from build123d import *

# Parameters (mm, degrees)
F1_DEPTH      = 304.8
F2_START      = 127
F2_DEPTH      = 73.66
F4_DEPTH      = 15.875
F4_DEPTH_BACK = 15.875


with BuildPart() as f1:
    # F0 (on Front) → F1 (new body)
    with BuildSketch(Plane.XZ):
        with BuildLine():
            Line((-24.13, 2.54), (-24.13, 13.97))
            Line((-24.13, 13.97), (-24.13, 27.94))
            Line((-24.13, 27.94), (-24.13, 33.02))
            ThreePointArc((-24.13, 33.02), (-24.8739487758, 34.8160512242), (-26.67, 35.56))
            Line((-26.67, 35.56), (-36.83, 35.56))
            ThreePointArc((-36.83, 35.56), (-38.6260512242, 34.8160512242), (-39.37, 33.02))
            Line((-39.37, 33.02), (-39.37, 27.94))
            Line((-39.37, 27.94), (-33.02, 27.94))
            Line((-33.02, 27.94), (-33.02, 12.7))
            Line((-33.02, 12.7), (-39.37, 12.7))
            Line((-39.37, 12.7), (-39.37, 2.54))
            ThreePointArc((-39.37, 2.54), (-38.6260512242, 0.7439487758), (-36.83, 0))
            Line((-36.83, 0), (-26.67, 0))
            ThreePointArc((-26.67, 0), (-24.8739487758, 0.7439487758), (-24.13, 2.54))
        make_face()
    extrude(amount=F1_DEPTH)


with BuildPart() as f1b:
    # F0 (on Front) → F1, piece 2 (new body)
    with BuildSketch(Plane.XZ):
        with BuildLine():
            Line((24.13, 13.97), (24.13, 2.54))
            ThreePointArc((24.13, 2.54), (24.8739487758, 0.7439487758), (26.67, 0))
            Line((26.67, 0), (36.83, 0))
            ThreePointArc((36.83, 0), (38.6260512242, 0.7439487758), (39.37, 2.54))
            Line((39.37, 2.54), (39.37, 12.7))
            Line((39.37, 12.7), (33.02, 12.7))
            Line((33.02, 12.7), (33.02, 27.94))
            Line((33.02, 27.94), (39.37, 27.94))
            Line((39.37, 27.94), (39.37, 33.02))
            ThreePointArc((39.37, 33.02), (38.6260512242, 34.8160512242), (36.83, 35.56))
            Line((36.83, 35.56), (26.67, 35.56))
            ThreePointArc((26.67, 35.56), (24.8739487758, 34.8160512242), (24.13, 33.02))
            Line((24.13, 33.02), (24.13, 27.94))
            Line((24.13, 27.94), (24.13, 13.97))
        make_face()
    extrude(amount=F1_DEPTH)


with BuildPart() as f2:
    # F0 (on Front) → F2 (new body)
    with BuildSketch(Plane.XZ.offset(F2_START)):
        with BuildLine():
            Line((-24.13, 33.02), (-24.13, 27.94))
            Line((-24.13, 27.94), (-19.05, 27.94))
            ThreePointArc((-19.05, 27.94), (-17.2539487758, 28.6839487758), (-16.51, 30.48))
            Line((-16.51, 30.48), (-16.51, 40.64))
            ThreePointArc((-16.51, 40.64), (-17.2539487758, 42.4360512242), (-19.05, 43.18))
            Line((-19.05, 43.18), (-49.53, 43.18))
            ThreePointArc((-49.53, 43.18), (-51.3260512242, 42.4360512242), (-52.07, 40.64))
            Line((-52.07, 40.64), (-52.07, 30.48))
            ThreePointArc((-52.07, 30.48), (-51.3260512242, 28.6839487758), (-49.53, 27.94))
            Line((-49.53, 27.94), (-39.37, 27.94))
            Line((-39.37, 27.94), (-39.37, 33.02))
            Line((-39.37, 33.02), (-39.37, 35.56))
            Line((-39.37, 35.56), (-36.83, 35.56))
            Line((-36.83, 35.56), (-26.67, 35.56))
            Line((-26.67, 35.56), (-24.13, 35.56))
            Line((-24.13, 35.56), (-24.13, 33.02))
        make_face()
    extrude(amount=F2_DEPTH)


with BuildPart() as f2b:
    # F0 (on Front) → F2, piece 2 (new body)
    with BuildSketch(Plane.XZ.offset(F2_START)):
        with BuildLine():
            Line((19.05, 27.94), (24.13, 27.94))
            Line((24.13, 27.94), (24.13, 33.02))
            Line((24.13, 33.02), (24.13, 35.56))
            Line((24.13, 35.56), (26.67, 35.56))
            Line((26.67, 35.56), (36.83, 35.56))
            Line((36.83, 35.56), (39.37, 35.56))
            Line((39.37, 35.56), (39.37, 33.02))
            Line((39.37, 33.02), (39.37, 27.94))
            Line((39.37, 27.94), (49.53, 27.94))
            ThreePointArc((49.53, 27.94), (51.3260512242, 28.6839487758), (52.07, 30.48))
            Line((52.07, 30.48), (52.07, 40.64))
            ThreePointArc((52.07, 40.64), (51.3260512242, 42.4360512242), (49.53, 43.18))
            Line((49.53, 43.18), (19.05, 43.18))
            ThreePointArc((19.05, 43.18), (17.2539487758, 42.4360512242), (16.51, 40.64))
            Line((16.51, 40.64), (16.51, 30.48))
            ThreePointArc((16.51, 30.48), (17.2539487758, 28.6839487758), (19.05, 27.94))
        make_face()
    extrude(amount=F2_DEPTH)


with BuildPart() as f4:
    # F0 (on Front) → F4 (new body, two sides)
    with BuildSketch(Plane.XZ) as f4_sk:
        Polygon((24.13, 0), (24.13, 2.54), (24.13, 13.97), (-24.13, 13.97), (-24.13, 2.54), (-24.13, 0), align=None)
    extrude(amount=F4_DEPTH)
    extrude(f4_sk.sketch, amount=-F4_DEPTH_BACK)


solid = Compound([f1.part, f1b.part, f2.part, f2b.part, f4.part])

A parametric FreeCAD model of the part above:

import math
import FreeCAD as App
import Part
import Sketcher

V = App.Vector
Q = App.Units.Quantity

doc = App.newDocument("Part")
params = doc.addObject("Spreadsheet::Sheet", "Params")
for row, (alias, value) in enumerate([
    ("sketch1_radius", "0.1 in"),
    ("sketch1_width", "0.4 in"),
    ("sketch1_height", "1.2 in"),
    ("sketch1_height2", "0.2 in"),
    ("sketch1_width2", "0.25 in"),
    ("pad1_length", "12 in"),
    ("sketch2_radius", "0.1 in"),
    ("sketch2_width", "0.4 in"),
    ("sketch2_height", "0.6 in"),
    ("sketch2_height2", "0.2 in"),
    ("sketch2_width2", "0.25 in"),
    ("pad2_length", "12 in"),
    ("sketch3_radius", "0.1 in"),
    ("sketch3_width", "0.2 in"),
    ("sketch3_width2", "1.2 in"),
    ("sketch3_width3", "0.4 in"),
    ("sketch3_height", "0.3 in"),
    ("pad3_length", "2.9 in"),
    ("sketch4_radius", "0.1 in"),
    ("sketch4_width", "0.2 in"),
    ("sketch4_width2", "0.6 in"),
    ("sketch4_width3", "0.4 in"),
    ("sketch4_height", "0.3 in"),
    ("pad4_length", "2.9 in"),
    ("sketch5_width", "1.9 in"),
    ("sketch5_height", "0.55 in"),
    ("pad5_length", "0.625 in"),
    ("pad5_length2", "0.625 in"),
], start=1):
    params.set(f"A{row}", alias)
    params.set(f"B{row}", "=" + value)
    params.setAlias(f"B{row}", alias)

body = doc.addObject("PartDesign::Body", "Body")

# Sketch on XZ plane
sketch1 = body.newObject("Sketcher::SketchObject", "Sketch")
sketch1.AttachmentSupport = (doc.getObject("XZ_Plane"), [""])
sketch1.MapMode = "FlatFace"
sketch1.addGeometry([
    Part.LineSegment(V(-24.13, 2.54, 0), V(-24.13, 33.02, 0)),  # 0
    Part.ArcOfCircle(Part.Circle(V(-26.67, 33.02, 0), V(0, 0, 1), 2.54), math.radians(0), math.radians(90)),  # 1
    Part.LineSegment(V(-26.67, 35.56, 0), V(-36.83, 35.56, 0)),  # 2
    Part.ArcOfCircle(Part.Circle(V(-36.83, 33.02, 0), V(0, 0, 1), 2.54), math.radians(90), math.radians(180)),  # 3
    Part.LineSegment(V(-39.37, 33.02, 0), V(-39.37, 27.94, 0)),  # 4
    Part.LineSegment(V(-39.37, 27.94, 0), V(-33.02, 27.94, 0)),  # 5
    Part.LineSegment(V(-33.02, 27.94, 0), V(-33.02, 12.7, 0)),  # 6
    Part.LineSegment(V(-33.02, 12.7, 0), V(-39.37, 12.7, 0)),  # 7
    Part.LineSegment(V(-39.37, 12.7, 0), V(-39.37, 2.54, 0)),  # 8
    Part.ArcOfCircle(Part.Circle(V(-36.83, 2.54, 0), V(0, 0, 1), 2.54), math.radians(180), math.radians(270)),  # 9
    Part.LineSegment(V(-36.83, 0, 0), V(-26.67, 0, 0)),  # 10
    Part.ArcOfCircle(Part.Circle(V(-26.67, 2.54, 0), V(0, 0, 1), 2.54), math.radians(-90), math.radians(0)),  # 11
], False)
sketch1.addConstraint([
    Sketcher.Constraint("Tangent", 0, 2, 1, 1),
    Sketcher.Constraint("Tangent", 1, 2, 2, 1),
    Sketcher.Constraint("Tangent", 2, 2, 3, 1),
    Sketcher.Constraint("Tangent", 3, 2, 4, 1),
    Sketcher.Constraint("Coincident", 4, 2, 5, 1),
    Sketcher.Constraint("Coincident", 5, 2, 6, 1),
    Sketcher.Constraint("Coincident", 6, 2, 7, 1),
    Sketcher.Constraint("Coincident", 7, 2, 8, 1),
    Sketcher.Constraint("Tangent", 8, 2, 9, 1),
    Sketcher.Constraint("Tangent", 9, 2, 10, 1),
    Sketcher.Constraint("Tangent", 10, 2, 11, 1),
    Sketcher.Constraint("Tangent", 11, 2, 0, 1),
    Sketcher.Constraint("Vertical", 0),
    Sketcher.Constraint("Horizontal", 2),
    Sketcher.Constraint("Vertical", 4),
    Sketcher.Constraint("Horizontal", 5),
    Sketcher.Constraint("Vertical", 6),
    Sketcher.Constraint("Horizontal", 7),
    Sketcher.Constraint("Vertical", 8),
    Sketcher.Constraint("Horizontal", 10),
    Sketcher.Constraint("Equal", 1, 3),
    Sketcher.Constraint("Equal", 3, 9),
    Sketcher.Constraint("Equal", 9, 11),
    Sketcher.Constraint("PointOnObject", 9, 2, -1),
    Sketcher.Constraint("Vertical", 3, 3, 9, 3),
    Sketcher.Constraint("Equal", 10, 8),
    Sketcher.Constraint("Radius", 1, Q("0.1 in")),
    Sketcher.Constraint("DistanceX", 2, 2, 2, 1, Q("0.4 in")),
    Sketcher.Constraint("DistanceY", 0, 1, 0, 2, Q("1.2 in")),
    Sketcher.Constraint("DistanceY", 4, 2, 4, 1, Q("0.2 in")),
    Sketcher.Constraint("DistanceX", 5, 1, 5, 2, Q("0.25 in")),
    Sketcher.Constraint("DistanceX", 5, 2, -1, 1, Q("1.3 in")),
])
sketch1.setExpression("Constraints[26]", "Params.sketch1_radius")
sketch1.setExpression("Constraints[27]", "Params.sketch1_width")
sketch1.setExpression("Constraints[28]", "Params.sketch1_height")
sketch1.setExpression("Constraints[29]", "Params.sketch1_height2")
sketch1.setExpression("Constraints[30]", "Params.sketch1_width2")
pad1 = body.newObject("PartDesign::Pad", "Pad")
pad1.Profile = sketch1
pad1.setExpression("Length", "Params.pad1_length")
body2 = doc.addObject("PartDesign::Body", "Body001")

# Sketch on XZ plane
sketch2 = body2.newObject("Sketcher::SketchObject", "Sketch001")
sketch2.AttachmentSupport = (doc.getObject("XZ_Plane001"), [""])
sketch2.MapMode = "FlatFace"
sketch2.addGeometry([
    Part.ArcOfCircle(Part.Circle(V(26.67, 2.54, 0), V(0, 0, 1), 2.54), math.radians(180), math.radians(270)),  # 0
    Part.LineSegment(V(26.67, 0, 0), V(36.83, 0, 0)),  # 1
    Part.ArcOfCircle(Part.Circle(V(36.83, 2.54, 0), V(0, 0, 1), 2.54), math.radians(-90), math.radians(0)),  # 2
    Part.LineSegment(V(39.37, 2.54, 0), V(39.37, 12.7, 0)),  # 3
    Part.LineSegment(V(39.37, 12.7, 0), V(33.02, 12.7, 0)),  # 4
    Part.LineSegment(V(33.02, 12.7, 0), V(33.02, 27.94, 0)),  # 5
    Part.LineSegment(V(33.02, 27.94, 0), V(39.37, 27.94, 0)),  # 6
    Part.LineSegment(V(39.37, 27.94, 0), V(39.37, 33.02, 0)),  # 7
    Part.ArcOfCircle(Part.Circle(V(36.83, 33.02, 0), V(0, 0, 1), 2.54), math.radians(0), math.radians(90)),  # 8
    Part.LineSegment(V(36.83, 35.56, 0), V(26.67, 35.56, 0)),  # 9
    Part.ArcOfCircle(Part.Circle(V(26.67, 33.02, 0), V(0, 0, 1), 2.54), math.radians(90), math.radians(180)),  # 10
    Part.LineSegment(V(24.13, 33.02, 0), V(24.13, 2.54, 0)),  # 11
], False)
sketch2.addConstraint([
    Sketcher.Constraint("Tangent", 0, 2, 1, 1),
    Sketcher.Constraint("Tangent", 1, 2, 2, 1),
    Sketcher.Constraint("Tangent", 2, 2, 3, 1),
    Sketcher.Constraint("Coincident", 3, 2, 4, 1),
    Sketcher.Constraint("Coincident", 4, 2, 5, 1),
    Sketcher.Constraint("Coincident", 5, 2, 6, 1),
    Sketcher.Constraint("Coincident", 6, 2, 7, 1),
    Sketcher.Constraint("Tangent", 7, 2, 8, 1),
    Sketcher.Constraint("Tangent", 8, 2, 9, 1),
    Sketcher.Constraint("Tangent", 9, 2, 10, 1),
    Sketcher.Constraint("Tangent", 10, 2, 11, 1),
    Sketcher.Constraint("Tangent", 11, 2, 0, 1),
    Sketcher.Constraint("Horizontal", 1),
    Sketcher.Constraint("Vertical", 3),
    Sketcher.Constraint("Horizontal", 4),
    Sketcher.Constraint("Vertical", 5),
    Sketcher.Constraint("Horizontal", 6),
    Sketcher.Constraint("Vertical", 7),
    Sketcher.Constraint("Horizontal", 9),
    Sketcher.Constraint("Vertical", 11),
    Sketcher.Constraint("Equal", 0, 2),
    Sketcher.Constraint("Equal", 2, 8),
    Sketcher.Constraint("Equal", 8, 10),
    Sketcher.Constraint("PointOnObject", 0, 2, -1),
    Sketcher.Constraint("Vertical", 2, 3, 8, 3),
    Sketcher.Constraint("Equal", 9, 3),
    Sketcher.Constraint("Radius", 0, Q("0.1 in")),
    Sketcher.Constraint("DistanceX", 1, 1, 1, 2, Q("0.4 in")),
    Sketcher.Constraint("DistanceY", 5, 1, 5, 2, Q("0.6 in")),
    Sketcher.Constraint("DistanceY", 7, 1, 7, 2, Q("0.2 in")),
    Sketcher.Constraint("DistanceX", 4, 2, 4, 1, Q("0.25 in")),
    Sketcher.Constraint("DistanceX", -1, 1, 4, 2, Q("1.3 in")),
])
sketch2.setExpression("Constraints[26]", "Params.sketch2_radius")
sketch2.setExpression("Constraints[27]", "Params.sketch2_width")
sketch2.setExpression("Constraints[28]", "Params.sketch2_height")
sketch2.setExpression("Constraints[29]", "Params.sketch2_height2")
sketch2.setExpression("Constraints[30]", "Params.sketch2_width2")
pad2 = body2.newObject("PartDesign::Pad", "Pad001")
pad2.Profile = sketch2
pad2.setExpression("Length", "Params.pad2_length")
body3 = doc.addObject("PartDesign::Body", "Body002")

# Sketch on XZ plane
sketch3 = body3.newObject("Sketcher::SketchObject", "Sketch002")
sketch3.AttachmentSupport = (doc.getObject("XZ_Plane002"), [""])
sketch3.MapMode = "FlatFace"
sketch3.AttachmentOffset = App.Placement(V(0, 0, 5 * 25.4), App.Rotation())
sketch3.addGeometry([
    Part.LineSegment(V(-24.13, 27.94, 0), V(-19.05, 27.94, 0)),  # 0
    Part.ArcOfCircle(Part.Circle(V(-19.05, 30.48, 0), V(0, 0, 1), 2.54), math.radians(-90), math.radians(0)),  # 1
    Part.LineSegment(V(-16.51, 30.48, 0), V(-16.51, 40.64, 0)),  # 2
    Part.ArcOfCircle(Part.Circle(V(-19.05, 40.64, 0), V(0, 0, 1), 2.54), math.radians(0), math.radians(90)),  # 3
    Part.LineSegment(V(-19.05, 43.18, 0), V(-49.53, 43.18, 0)),  # 4
    Part.ArcOfCircle(Part.Circle(V(-49.53, 40.64, 0), V(0, 0, 1), 2.54), math.radians(90), math.radians(180)),  # 5
    Part.LineSegment(V(-52.07, 40.64, 0), V(-52.07, 30.48, 0)),  # 6
    Part.ArcOfCircle(Part.Circle(V(-49.53, 30.48, 0), V(0, 0, 1), 2.54), math.radians(180), math.radians(270)),  # 7
    Part.LineSegment(V(-49.53, 27.94, 0), V(-39.37, 27.94, 0)),  # 8
    Part.LineSegment(V(-39.37, 27.94, 0), V(-39.37, 35.56, 0)),  # 9
    Part.LineSegment(V(-39.37, 35.56, 0), V(-24.13, 35.56, 0)),  # 10
    Part.LineSegment(V(-24.13, 35.56, 0), V(-24.13, 27.94, 0)),  # 11
], False)
sketch3.addConstraint([
    Sketcher.Constraint("Tangent", 0, 2, 1, 1),
    Sketcher.Constraint("Tangent", 1, 2, 2, 1),
    Sketcher.Constraint("Tangent", 2, 2, 3, 1),
    Sketcher.Constraint("Tangent", 3, 2, 4, 1),
    Sketcher.Constraint("Tangent", 4, 2, 5, 1),
    Sketcher.Constraint("Tangent", 5, 2, 6, 1),
    Sketcher.Constraint("Tangent", 6, 2, 7, 1),
    Sketcher.Constraint("Tangent", 7, 2, 8, 1),
    Sketcher.Constraint("Coincident", 8, 2, 9, 1),
    Sketcher.Constraint("Coincident", 9, 2, 10, 1),
    Sketcher.Constraint("Coincident", 10, 2, 11, 1),
    Sketcher.Constraint("Coincident", 11, 2, 0, 1),
    Sketcher.Constraint("Horizontal", 0),
    Sketcher.Constraint("Vertical", 2),
    Sketcher.Constraint("Horizontal", 4),
    Sketcher.Constraint("Vertical", 6),
    Sketcher.Constraint("Horizontal", 8),
    Sketcher.Constraint("Vertical", 9),
    Sketcher.Constraint("Horizontal", 10),
    Sketcher.Constraint("Vertical", 11),
    Sketcher.Constraint("Equal", 1, 3),
    Sketcher.Constraint("Equal", 3, 5),
    Sketcher.Constraint("Equal", 5, 7),
    Sketcher.Constraint("Horizontal", 1, 3, 7, 3),
    Sketcher.Constraint("Equal", 8, 2),
    Sketcher.Constraint("Radius", 1, Q("0.1 in")),
    Sketcher.Constraint("DistanceX", 0, 1, 0, 2, Q("0.2 in")),
    Sketcher.Constraint("DistanceX", 4, 2, 4, 1, Q("1.2 in")),
    Sketcher.Constraint("DistanceX", 8, 1, 8, 2, Q("0.4 in")),
    Sketcher.Constraint("DistanceY", 9, 1, 9, 2, Q("0.3 in")),
    Sketcher.Constraint("DistanceY", -1, 1, 1, 3, Q("1.2 in")),
    Sketcher.Constraint("DistanceX", 1, 3, -1, 1, Q("0.75 in")),
])
sketch3.setExpression("Constraints[25]", "Params.sketch3_radius")
sketch3.setExpression("Constraints[26]", "Params.sketch3_width")
sketch3.setExpression("Constraints[27]", "Params.sketch3_width2")
sketch3.setExpression("Constraints[28]", "Params.sketch3_width3")
sketch3.setExpression("Constraints[29]", "Params.sketch3_height")
pad3 = body3.newObject("PartDesign::Pad", "Pad002")
pad3.Profile = sketch3
pad3.setExpression("Length", "Params.pad3_length")
body4 = doc.addObject("PartDesign::Body", "Body003")

# Sketch on XZ plane
sketch4 = body4.newObject("Sketcher::SketchObject", "Sketch003")
sketch4.AttachmentSupport = (doc.getObject("XZ_Plane003"), [""])
sketch4.MapMode = "FlatFace"
sketch4.AttachmentOffset = App.Placement(V(0, 0, 5 * 25.4), App.Rotation())
sketch4.addGeometry([
    Part.LineSegment(V(19.05, 27.94, 0), V(24.13, 27.94, 0)),  # 0
    Part.LineSegment(V(24.13, 27.94, 0), V(24.13, 35.56, 0)),  # 1
    Part.LineSegment(V(24.13, 35.56, 0), V(39.37, 35.56, 0)),  # 2
    Part.LineSegment(V(39.37, 35.56, 0), V(39.37, 27.94, 0)),  # 3
    Part.LineSegment(V(39.37, 27.94, 0), V(49.53, 27.94, 0)),  # 4
    Part.ArcOfCircle(Part.Circle(V(49.53, 30.48, 0), V(0, 0, 1), 2.54), math.radians(-90), math.radians(0)),  # 5
    Part.LineSegment(V(52.07, 30.48, 0), V(52.07, 40.64, 0)),  # 6
    Part.ArcOfCircle(Part.Circle(V(49.53, 40.64, 0), V(0, 0, 1), 2.54), math.radians(0), math.radians(90)),  # 7
    Part.LineSegment(V(49.53, 43.18, 0), V(19.05, 43.18, 0)),  # 8
    Part.ArcOfCircle(Part.Circle(V(19.05, 40.64, 0), V(0, 0, 1), 2.54), math.radians(90), math.radians(180)),  # 9
    Part.LineSegment(V(16.51, 40.64, 0), V(16.51, 30.48, 0)),  # 10
    Part.ArcOfCircle(Part.Circle(V(19.05, 30.48, 0), V(0, 0, 1), 2.54), math.radians(180), math.radians(270)),  # 11
], False)
sketch4.addConstraint([
    Sketcher.Constraint("Coincident", 0, 2, 1, 1),
    Sketcher.Constraint("Coincident", 1, 2, 2, 1),
    Sketcher.Constraint("Coincident", 2, 2, 3, 1),
    Sketcher.Constraint("Coincident", 3, 2, 4, 1),
    Sketcher.Constraint("Tangent", 4, 2, 5, 1),
    Sketcher.Constraint("Tangent", 5, 2, 6, 1),
    Sketcher.Constraint("Tangent", 6, 2, 7, 1),
    Sketcher.Constraint("Tangent", 7, 2, 8, 1),
    Sketcher.Constraint("Tangent", 8, 2, 9, 1),
    Sketcher.Constraint("Tangent", 9, 2, 10, 1),
    Sketcher.Constraint("Tangent", 10, 2, 11, 1),
    Sketcher.Constraint("Tangent", 11, 2, 0, 1),
    Sketcher.Constraint("Horizontal", 0),
    Sketcher.Constraint("Vertical", 1),
    Sketcher.Constraint("Horizontal", 2),
    Sketcher.Constraint("Vertical", 3),
    Sketcher.Constraint("Horizontal", 4),
    Sketcher.Constraint("Vertical", 6),
    Sketcher.Constraint("Horizontal", 8),
    Sketcher.Constraint("Vertical", 10),
    Sketcher.Constraint("Equal", 5, 7),
    Sketcher.Constraint("Equal", 7, 9),
    Sketcher.Constraint("Equal", 9, 11),
    Sketcher.Constraint("Horizontal", 5, 3, 11, 3),
    Sketcher.Constraint("Equal", 4, 6),
    Sketcher.Constraint("Radius", 5, Q("0.1 in")),
    Sketcher.Constraint("DistanceX", 0, 1, 0, 2, Q("0.2 in")),
    Sketcher.Constraint("DistanceX", 2, 1, 2, 2, Q("0.6 in")),
    Sketcher.Constraint("DistanceX", 4, 1, 4, 2, Q("0.4 in")),
    Sketcher.Constraint("DistanceY", 1, 1, 1, 2, Q("0.3 in")),
    Sketcher.Constraint("DistanceY", -1, 1, 5, 3, Q("1.2 in")),
    Sketcher.Constraint("DistanceX", -1, 1, 5, 3, Q("1.95 in")),
])
sketch4.setExpression("Constraints[25]", "Params.sketch4_radius")
sketch4.setExpression("Constraints[26]", "Params.sketch4_width")
sketch4.setExpression("Constraints[27]", "Params.sketch4_width2")
sketch4.setExpression("Constraints[28]", "Params.sketch4_width3")
sketch4.setExpression("Constraints[29]", "Params.sketch4_height")
pad4 = body4.newObject("PartDesign::Pad", "Pad003")
pad4.Profile = sketch4
pad4.setExpression("Length", "Params.pad4_length")
body5 = doc.addObject("PartDesign::Body", "Body004")

# Sketch on XZ plane
sketch5 = body5.newObject("Sketcher::SketchObject", "Sketch004")
sketch5.AttachmentSupport = (doc.getObject("XZ_Plane004"), [""])
sketch5.MapMode = "FlatFace"
sketch5.addGeometry([
    Part.LineSegment(V(24.13, 0, 0), V(24.13, 13.97, 0)),
    Part.LineSegment(V(24.13, 13.97, 0), V(-24.13, 13.97, 0)),
    Part.LineSegment(V(-24.13, 13.97, 0), V(-24.13, 0, 0)),
    Part.LineSegment(V(-24.13, 0, 0), V(24.13, 0, 0)),
], False)
sketch5.addConstraint([
    Sketcher.Constraint("Coincident", 0, 2, 1, 1),
    Sketcher.Constraint("Coincident", 1, 2, 2, 1),
    Sketcher.Constraint("Coincident", 2, 2, 3, 1),
    Sketcher.Constraint("Coincident", 3, 2, 0, 1),
    Sketcher.Constraint("Vertical", 0),
    Sketcher.Constraint("Horizontal", 1),
    Sketcher.Constraint("Vertical", 2),
    Sketcher.Constraint("Horizontal", 3),
    Sketcher.Constraint("Symmetric", 2, 2, 3, 2, -1, 1),
    Sketcher.Constraint("DistanceX", 1, 2, 1, 1, Q("1.9 in")),
    Sketcher.Constraint("DistanceY", 0, 1, 0, 2, Q("0.55 in")),
])
sketch5.setExpression("Constraints[9]", "Params.sketch5_width")
sketch5.setExpression("Constraints[10]", "Params.sketch5_height")
pad5 = body5.newObject("PartDesign::Pad", "Pad004")
pad5.Profile = sketch5
pad5.Type = "TwoLengths"
pad5.setExpression("Length", "Params.pad5_length")
pad5.setExpression("Length2", "Params.pad5_length2")

doc.recompute()
